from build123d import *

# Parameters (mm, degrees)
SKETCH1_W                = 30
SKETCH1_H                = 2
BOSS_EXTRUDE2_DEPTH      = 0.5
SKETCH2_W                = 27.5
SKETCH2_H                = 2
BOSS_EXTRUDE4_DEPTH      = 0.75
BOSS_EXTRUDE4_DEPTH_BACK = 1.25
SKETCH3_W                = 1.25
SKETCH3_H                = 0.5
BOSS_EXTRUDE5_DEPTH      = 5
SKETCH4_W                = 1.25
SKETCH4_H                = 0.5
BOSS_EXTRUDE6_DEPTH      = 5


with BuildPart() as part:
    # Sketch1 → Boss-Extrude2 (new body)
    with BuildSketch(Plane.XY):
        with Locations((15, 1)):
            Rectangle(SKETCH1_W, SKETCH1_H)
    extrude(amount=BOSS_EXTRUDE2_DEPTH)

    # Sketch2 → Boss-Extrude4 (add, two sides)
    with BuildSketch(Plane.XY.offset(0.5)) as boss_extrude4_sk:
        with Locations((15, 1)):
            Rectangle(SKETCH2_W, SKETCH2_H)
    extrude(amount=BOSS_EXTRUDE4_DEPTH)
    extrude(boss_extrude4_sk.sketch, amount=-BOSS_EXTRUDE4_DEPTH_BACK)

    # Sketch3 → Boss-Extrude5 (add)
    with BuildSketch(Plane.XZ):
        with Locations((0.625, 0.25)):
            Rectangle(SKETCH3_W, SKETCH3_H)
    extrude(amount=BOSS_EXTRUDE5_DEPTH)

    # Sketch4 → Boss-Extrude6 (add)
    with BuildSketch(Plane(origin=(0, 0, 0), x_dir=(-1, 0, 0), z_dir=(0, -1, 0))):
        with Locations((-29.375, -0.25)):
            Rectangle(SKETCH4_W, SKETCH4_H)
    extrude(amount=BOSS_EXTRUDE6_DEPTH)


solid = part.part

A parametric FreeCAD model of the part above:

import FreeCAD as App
import Part
import Sketcher

V = App.Vector
Q = App.Units.Quantity

doc = App.newDocument("Part")
body = doc.addObject("PartDesign::Body", "Body")

# Sketch on XY plane
sketch1 = body.newObject("Sketcher::SketchObject", "Sketch")
sketch1.AttachmentSupport = (doc.getObject("XY_Plane"), [""])
sketch1.MapMode = "FlatFace"
sketch1.addGeometry(Part.LineSegment(V(0, 2, 0), V(0, 0, 0)), False)
sketch1.addGeometry(Part.LineSegment(V(0, 0, 0), V(30, 0, 0)), False)
sketch1.addGeometry(Part.LineSegment(V(30, 0, 0), V(30, 2, 0)), False)
sketch1.addGeometry(Part.LineSegment(V(30, 2, 0), V(0, 2, 0)), False)
sketch1.addConstraint(Sketcher.Constraint("Coincident", 0, 2, 1, 1))
sketch1.addConstraint(Sketcher.Constraint("Coincident", 1, 2, 2, 1))
sketch1.addConstraint(Sketcher.Constraint("Coincident", 2, 2, 3, 1))
sketch1.addConstraint(Sketcher.Constraint("Coincident", 3, 2, 0, 1))
sketch1.addConstraint(Sketcher.Constraint("Vertical", 0))
sketch1.addConstraint(Sketcher.Constraint("Horizontal", 1))
sketch1.addConstraint(Sketcher.Constraint("Vertical", 2))
sketch1.addConstraint(Sketcher.Constraint("Horizontal", 3))
sketch1.addConstraint(Sketcher.Constraint("Coincident", 0, 2, -1, 1))
sketch1.addConstraint(Sketcher.Constraint("DistanceX", 1, 1, 1, 2, Q("30 mm")))
sketch1.addConstraint(Sketcher.Constraint("DistanceY", 0, 2, 0, 1, Q("2 mm")))
pad1 = body.newObject("PartDesign::Pad", "Pad")
pad1.Profile = sketch1
pad1.Length = 0.5

# Sketch on XY plane
sketch2 = body.newObject("Sketcher::SketchObject", "Sketch001")
sketch2.AttachmentSupport = (doc.getObject("XY_Plane"), [""])
sketch2.MapMode = "FlatFace"
sketch2.AttachmentOffset = App.Placement(V(0, 0, 0.5), App.Rotation())
sketch2.addGeometry(Part.LineSegment(V(1.2, 2, 0), V(1.2, 0, 0)), False)
sketch2.addGeometry(Part.LineSegment(V(1.2, 0, 0), V(28.8, 0, 0)), False)
sketch2.addGeometry(Part.LineSegment(V(28.8, 0, 0), V(28.8, 2, 0)), False)
sketch2.addGeometry(Part.LineSegment(V(28.8, 2, 0), V(1.2, 2, 0)), False)
sketch2.addConstraint(Sketcher.Constraint("Coincident", 0, 2, 1, 1))
sketch2.addConstraint(Sketcher.Constraint("Coincident", 1, 2, 2, 1))
sketch2.addConstraint(Sketcher.Constraint("Coincident", 2, 2, 3, 1))
sketch2.addConstraint(Sketcher.Constraint("Coincident", 3, 2, 0, 1))
sketch2.addConstraint(Sketcher.Constraint("Vertical", 0))
sketch2.addConstraint(Sketcher.Constraint("Horizontal", 1))
sketch2.addConstraint(Sketcher.Constraint("Vertical", 2))
sketch2.addConstraint(Sketcher.Constraint("Horizontal", 3))
sketch2.addConstraint(Sketcher.Constraint("PointOnObject", 0, 2, -1))
sketch2.addConstraint(Sketcher.Constraint("DistanceY", 0, 2, 0, 1, Q("2 mm")))
sketch2.addConstraint(Sketcher.Constraint("DistanceX", 1, 1, 1, 2, Q("27.5 mm")))
sketch2.addConstraint(Sketcher.Constraint("DistanceX", -1, 1, 0, 2, Q("1.25 mm")))
pad2 = body.newObject("PartDesign::Pad", "Pad001")
pad2.Profile = sketch2
pad2.Type = "TwoLengths"
pad2.Length = 0.75
pad2.Length2 = 1.25

# Sketch on XZ plane
sketch3 = body.newObject("Sketcher::SketchObject", "Sketch002")
sketch3.AttachmentSupport = (doc.getObject("XZ_Plane"), [""])
sketch3.MapMode = "FlatFace"
sketch3.addGeometry(Part.LineSegment(V(0, 0.5, 0), V(0, 0, 0)), False)
sketch3.addGeometry(Part.LineSegment(V(0, 0, 0), V(1.2, 0, 0)), False)
sketch3.addGeometry(Part.LineSegment(V(1.2, 0, 0), V(1.2, 0.5, 0)), False)
sketch3.addGeometry(Part.LineSegment(V(1.2, 0.5, 0), V(0, 0.5, 0)), False)
sketch3.addConstraint(Sketcher.Constraint("Coincident", 0, 2, 1, 1))
sketch3.addConstraint(Sketcher.Constraint("Coincident", 1, 2, 2, 1))
sketch3.addConstraint(Sketcher.Constraint("Coincident", 2, 2, 3, 1))
sketch3.addConstraint(Sketcher.Constraint("Coincident", 3, 2, 0, 1))
sketch3.addConstraint(Sketcher.Constraint("Vertical", 0))
sketch3.addConstraint(Sketcher.Constraint("Horizontal", 1))
sketch3.addConstraint(Sketcher.Constraint("Vertical", 2))
sketch3.addConstraint(Sketcher.Constraint("Horizontal", 3))
sketch3.addConstraint(Sketcher.Constraint("Coincident", 0, 2, -1, 1))
sketch3.addConstraint(Sketcher.Constraint("DistanceY", 0, 2, 0, 1, Q("0.5 mm")))
sketch3.addConstraint(Sketcher.Constraint("DistanceX", 1, 1, 1, 2, Q("1.25 mm")))
pad3 = body.newObject("PartDesign::Pad", "Pad002")
pad3.Profile = sketch3
pad3.Length = 5

# Sketch on XZ plane
sketch4 = body.newObject("Sketcher::SketchObject", "Sketch003")
sketch4.AttachmentSupport = (doc.getObject("XZ_Plane"), [""])
sketch4.MapMode = "FlatFace"
sketch4.addGeometry(Part.LineSegment(V(30, 0, 0), V(30, 0.5, 0)), False)
sketch4.addGeometry(Part.LineSegment(V(30, 0.5, 0), V(28.8, 0.5, 0)), False)
sketch4.addGeometry(Part.LineSegment(V(28.8, 0.5, 0), V(28.8, 0, 0)), False)
sketch4.addGeometry(Part.LineSegment(V(28.8, 0, 0), V(30, 0, 0)), False)
sketch4.addConstraint(Sketcher.Constraint("Coincident", 0, 2, 1, 1))
sketch4.addConstraint(Sketcher.Constraint("Coincident", 1, 2, 2, 1))
sketch4.addConstraint(Sketcher.Constraint("Coincident", 2, 2, 3, 1))
sketch4.addConstraint(Sketcher.Constraint("Coincident", 3, 2, 0, 1))
sketch4.addConstraint(Sketcher.Constraint("Vertical", 0))
sketch4.addConstraint(Sketcher.Constraint("Horizontal", 1))
sketch4.addConstraint(Sketcher.Constraint("Vertical", 2))
sketch4.addConstraint(Sketcher.Constraint("Horizontal", 3))
sketch4.addConstraint(Sketcher.Constraint("PointOnObject", 2, 2, -1))
sketch4.addConstraint(Sketcher.Constraint("DistanceY", 0, 1, 0, 2, Q("0.5 mm")))
sketch4.addConstraint(Sketcher.Constraint("DistanceX", -1, 1, 0, 2, Q("30 mm")))
sketch4.addConstraint(Sketcher.Constraint("DistanceX", 1, 2, 1, 1, Q("1.25 mm")))
pad4 = body.newObject("PartDesign::Pad", "Pad003")
pad4.Profile = sketch4
pad4.Length = 5

doc.recompute()
